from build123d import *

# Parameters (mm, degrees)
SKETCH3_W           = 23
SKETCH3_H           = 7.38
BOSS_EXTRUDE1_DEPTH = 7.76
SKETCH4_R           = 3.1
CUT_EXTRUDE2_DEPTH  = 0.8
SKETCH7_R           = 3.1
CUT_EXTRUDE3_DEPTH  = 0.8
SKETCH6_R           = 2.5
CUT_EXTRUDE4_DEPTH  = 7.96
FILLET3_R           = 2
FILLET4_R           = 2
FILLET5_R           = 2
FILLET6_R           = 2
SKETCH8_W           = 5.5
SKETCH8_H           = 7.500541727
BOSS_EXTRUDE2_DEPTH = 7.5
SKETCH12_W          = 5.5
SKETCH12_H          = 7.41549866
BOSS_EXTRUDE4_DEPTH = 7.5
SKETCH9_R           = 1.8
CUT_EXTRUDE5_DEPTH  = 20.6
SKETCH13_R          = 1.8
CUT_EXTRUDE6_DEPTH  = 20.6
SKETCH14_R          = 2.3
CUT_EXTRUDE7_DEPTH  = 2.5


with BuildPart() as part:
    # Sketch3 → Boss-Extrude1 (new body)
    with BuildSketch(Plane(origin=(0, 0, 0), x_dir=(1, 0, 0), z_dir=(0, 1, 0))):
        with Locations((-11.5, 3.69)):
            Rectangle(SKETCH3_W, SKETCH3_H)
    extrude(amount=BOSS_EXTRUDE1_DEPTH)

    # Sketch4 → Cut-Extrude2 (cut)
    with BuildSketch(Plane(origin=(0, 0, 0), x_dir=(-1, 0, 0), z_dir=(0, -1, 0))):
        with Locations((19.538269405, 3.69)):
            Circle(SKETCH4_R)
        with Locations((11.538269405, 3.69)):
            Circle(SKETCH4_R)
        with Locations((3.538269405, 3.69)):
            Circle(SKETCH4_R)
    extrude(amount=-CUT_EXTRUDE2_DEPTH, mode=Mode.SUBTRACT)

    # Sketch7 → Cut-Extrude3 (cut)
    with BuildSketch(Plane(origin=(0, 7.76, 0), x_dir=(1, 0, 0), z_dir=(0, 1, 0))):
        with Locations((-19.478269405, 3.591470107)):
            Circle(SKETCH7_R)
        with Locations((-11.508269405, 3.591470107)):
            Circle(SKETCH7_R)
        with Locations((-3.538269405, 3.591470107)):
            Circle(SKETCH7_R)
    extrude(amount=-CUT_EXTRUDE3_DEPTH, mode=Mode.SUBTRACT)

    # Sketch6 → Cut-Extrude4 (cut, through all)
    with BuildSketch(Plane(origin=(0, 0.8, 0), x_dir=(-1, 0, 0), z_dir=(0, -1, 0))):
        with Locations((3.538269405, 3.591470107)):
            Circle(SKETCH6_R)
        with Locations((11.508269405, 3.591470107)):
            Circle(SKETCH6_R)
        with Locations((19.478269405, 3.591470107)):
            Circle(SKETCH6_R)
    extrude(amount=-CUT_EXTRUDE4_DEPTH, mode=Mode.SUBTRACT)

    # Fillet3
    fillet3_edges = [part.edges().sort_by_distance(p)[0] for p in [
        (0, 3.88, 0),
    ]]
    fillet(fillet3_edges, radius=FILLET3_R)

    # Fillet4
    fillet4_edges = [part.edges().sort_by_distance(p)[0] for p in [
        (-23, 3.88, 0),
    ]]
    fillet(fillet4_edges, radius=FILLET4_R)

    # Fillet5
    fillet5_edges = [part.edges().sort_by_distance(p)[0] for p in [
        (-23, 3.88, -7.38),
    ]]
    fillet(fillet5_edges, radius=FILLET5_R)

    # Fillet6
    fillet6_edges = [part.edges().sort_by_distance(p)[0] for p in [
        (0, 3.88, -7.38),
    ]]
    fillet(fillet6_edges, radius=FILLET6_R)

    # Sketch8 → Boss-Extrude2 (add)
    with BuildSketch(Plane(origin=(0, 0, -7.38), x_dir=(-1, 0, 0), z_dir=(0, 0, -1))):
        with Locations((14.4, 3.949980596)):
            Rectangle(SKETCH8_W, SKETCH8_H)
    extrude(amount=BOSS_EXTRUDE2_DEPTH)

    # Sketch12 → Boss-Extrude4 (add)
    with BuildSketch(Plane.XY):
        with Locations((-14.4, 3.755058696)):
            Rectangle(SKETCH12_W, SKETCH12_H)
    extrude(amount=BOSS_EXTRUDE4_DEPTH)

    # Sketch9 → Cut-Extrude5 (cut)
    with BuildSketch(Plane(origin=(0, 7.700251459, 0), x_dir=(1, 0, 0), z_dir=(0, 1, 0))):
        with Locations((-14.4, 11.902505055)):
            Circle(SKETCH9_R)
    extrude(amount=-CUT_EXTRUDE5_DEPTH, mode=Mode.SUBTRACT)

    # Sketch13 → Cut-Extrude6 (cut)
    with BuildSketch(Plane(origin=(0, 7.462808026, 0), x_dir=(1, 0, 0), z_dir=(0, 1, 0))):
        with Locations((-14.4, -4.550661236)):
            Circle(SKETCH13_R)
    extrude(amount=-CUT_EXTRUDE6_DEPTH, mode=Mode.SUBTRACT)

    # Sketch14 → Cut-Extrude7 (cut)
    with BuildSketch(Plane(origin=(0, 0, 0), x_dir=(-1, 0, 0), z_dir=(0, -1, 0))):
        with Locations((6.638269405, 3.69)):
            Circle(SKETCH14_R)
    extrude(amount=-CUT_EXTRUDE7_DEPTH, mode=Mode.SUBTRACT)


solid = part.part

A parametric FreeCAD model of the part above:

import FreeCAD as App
import Part
import Sketcher

V = App.Vector
Q = App.Units.Quantity


def edges_at(feature, points):
    """Names of the edges that pass closest to the given points."""
    edges = feature.Shape.Edges
    near = lambda p: min(range(len(edges)), key=lambda i: edges[i].distToShape(Part.Vertex(*p))[0])
    return sorted({f"Edge{near(p) + 1}" for p in points})

doc = App.newDocument("Part")
body = doc.addObject("PartDesign::Body", "Body")

# Sketch on XZ plane
sketch1 = body.newObject("Sketcher::SketchObject", "Sketch")
sketch1.AttachmentSupport = (doc.getObject("XZ_Plane"), [""])
sketch1.MapMode = "FlatFace"
sketch1.addGeometry(Part.LineSegment(V(-23, -7.38, 0), V(-23, 0, 0)), False)
sketch1.addGeometry(Part.LineSegment(V(-23, 0, 0), V(0, 0, 0)), False)
sketch1.addGeometry(Part.LineSegment(V(0, 0, 0), V(0, -7.38, 0)), False)
sketch1.addGeometry(Part.LineSegment(V(0, -7.38, 0), V(-23, -7.38, 0)), False)
sketch1.addConstraint(Sketcher.Constraint("Coincident", 0, 2, 1, 1))
sketch1.addConstraint(Sketcher.Constraint("Coincident", 1, 2, 2, 1))
sketch1.addConstraint(Sketcher.Constraint("Coincident", 2, 2, 3, 1))
sketch1.addConstraint(Sketcher.Constraint("Coincident", 3, 2, 0, 1))
sketch1.addConstraint(Sketcher.Constraint("Vertical", 0))
sketch1.addConstraint(Sketcher.Constraint("Horizontal", 1))
sketch1.addConstraint(Sketcher.Constraint("Vertical", 2))
sketch1.addConstraint(Sketcher.Constraint("Horizontal", 3))
sketch1.addConstraint(Sketcher.Constraint("Coincident", 1, 2, -1, 1))
sketch1.addConstraint(Sketcher.Constraint("DistanceX", 1, 1, 1, 2, Q("23 mm")))
sketch1.addConstraint(Sketcher.Constraint("DistanceY", 0, 1, 0, 2, Q("7.38 mm")))
pad1 = body.newObject("PartDesign::Pad", "Pad")
pad1.Profile = sketch1
pad1.Length = 7.76
pad1.Reversed = True

# Sketch on XZ plane
sketch2 = body.newObject("Sketcher::SketchObject", "Sketch001")
sketch2.AttachmentSupport = (doc.getObject("XZ_Plane"), [""])
sketch2.MapMode = "FlatFace"
sketch2.addGeometry(Part.Circle(V(-19.538269, -3.69, 0), V(0, 0, 1), 3.1), False)
sketch2.addGeometry(Part.Circle(V(-11.538269, -3.69, 0), V(0, 0, 1), 3.1), False)
sketch2.addGeometry(Part.Circle(V(-3.538269, -3.69, 0), V(0, 0, 1), 3.1), False)
sketch2.addConstraint(Sketcher.Constraint("Equal", 0, 1))
sketch2.addConstraint(Sketcher.Constraint("Equal", 1, 2))
sketch2.addConstraint(Sketcher.Constraint("Horizontal", 0, 3, 1, 3))
sketch2.addConstraint(Sketcher.Constraint("Horizontal", 1, 3, 2, 3))
sketch2.addConstraint(Sketcher.Constraint("Diameter", 0, Q("6.2 mm")))
sketch2.addConstraint(Sketcher.Constraint("DistanceX", 0, 3, 1, 3, Q("8 mm")))
sketch2.addConstraint(Sketcher.Constraint("DistanceX", 1, 3, 2, 3, Q("8 mm")))
sketch2.addConstraint(Sketcher.Constraint("DistanceY", 0, 3, -1, 1, Q("3.69 mm")))
sketch2.addConstraint(Sketcher.Constraint("DistanceX", 0, 3, -1, 1, Q("19.538269 mm")))
pocket1 = body.newObject("PartDesign::Pocket", "Pocket")
pocket1.Profile = sketch2
pocket1.Length = 0.8

# Sketch on XZ plane
sketch3 = body.newObject("Sketcher::SketchObject", "Sketch002")
sketch3.AttachmentSupport = (doc.getObject("XZ_Plane"), [""])
sketch3.MapMode = "FlatFace"
sketch3.AttachmentOffset = App.Placement(V(0, 0, -7.76), App.Rotation())
sketch3.addGeometry(Part.Circle(V(-19.478269, -3.59147, 0), V(0, 0, 1), 3.1), False)
sketch3.addGeometry(Part.Circle(V(-11.508269, -3.59147, 0), V(0, 0, 1), 3.1), False)
sketch3.addGeometry(Part.Circle(V(-3.538269, -3.59147, 0), V(0, 0, 1), 3.1), False)
sketch3.addConstraint(Sketcher.Constraint("Equal", 0, 1))
sketch3.addConstraint(Sketcher.Constraint("Equal", 1, 2))
sketch3.addConstraint(Sketcher.Constraint("Horizontal", 0, 3, 1, 3))
sketch3.addConstraint(Sketcher.Constraint("Horizontal", 1, 3, 2, 3))
sketch3.addConstraint(Sketcher.Constraint("Diameter", 0, Q("6.2 mm")))
sketch3.addConstraint(Sketcher.Constraint("DistanceX", 0, 3, 1, 3, Q("7.97 mm")))
sketch3.addConstraint(Sketcher.Constraint("DistanceX", 1, 3, 2, 3, Q("7.97 mm")))
sketch3.addConstraint(Sketcher.Constraint("DistanceX", 0, 3, -1, 1, Q("19.478269 mm")))
sketch3.addConstraint(Sketcher.Constraint("DistanceY", 0, 3, -1, 1, Q("3.59147 mm")))
pocket2 = body.newObject("PartDesign::Pocket", "Pocket001")
pocket2.Profile = sketch3
pocket2.Length = 0.8
pocket2.Reversed = True

# Sketch on XZ plane
sketch4 = body.newObject("Sketcher::SketchObject", "Sketch003")
sketch4.AttachmentSupport = (doc.getObject("XZ_Plane"), [""])
sketch4.MapMode = "FlatFace"
sketch4.AttachmentOffset = App.Placement(V(0, 0, -0.8), App.Rotation())
sketch4.addGeometry(Part.Circle(V(-3.538269, -3.59147, 0), V(0, 0, 1), 2.5), False)
sketch4.addGeometry(Part.Circle(V(-11.508269, -3.59147, 0), V(0, 0, 1), 2.5), False)
sketch4.addGeometry(Part.Circle(V(-19.478269, -3.59147, 0), V(0, 0, 1), 2.5), False)
sketch4.addConstraint(Sketcher.Constraint("Equal", 0, 1))
sketch4.addConstraint(Sketcher.Constraint("Equal", 1, 2))
sketch4.addConstraint(Sketcher.Constraint("Horizontal", 0, 3, 1, 3))
sketch4.addConstraint(Sketcher.Constraint("Horizontal", 1, 3, 2, 3))
sketch4.addConstraint(Sketcher.Constraint("Diameter", 0, Q("5 mm")))
sketch4.addConstraint(Sketcher.Constraint("DistanceX", 1, 3, 0, 3, Q("7.97 mm")))
sketch4.addConstraint(Sketcher.Constraint("DistanceX", 2, 3, 1, 3, Q("7.97 mm")))
sketch4.addConstraint(Sketcher.Constraint("DistanceX", 0, 3, -1, 1, Q("3.538269 mm")))
sketch4.addConstraint(Sketcher.Constraint("DistanceY", 0, 3, -1, 1, Q("3.59147 mm")))
pocket3 = body.newObject("PartDesign::Pocket", "Pocket002")
pocket3.Profile = sketch4
pocket3.Type = "ThroughAll"
doc.recompute()

fillet = body.newObject("PartDesign::Fillet", "Fillet")
fillet.Base = (pocket3, edges_at(pocket3, [(0, 3.88, 0)]))
fillet.Radius = 2
doc.recompute()

fillet2 = body.newObject("PartDesign::Fillet", "Fillet001")
fillet2.Base = (fillet, edges_at(fillet, [(-23, 3.88, 0)]))
fillet2.Radius = 2
doc.recompute()

fillet3 = body.newObject("PartDesign::Fillet", "Fillet002")
fillet3.Base = (fillet2, edges_at(fillet2, [(-23, 3.88, -7.38)]))
fillet3.Radius = 2
doc.recompute()

fillet4 = body.newObject("PartDesign::Fillet", "Fillet003")
fillet4.Base = (fillet3, edges_at(fillet3, [(0, 3.88, -7.38)]))
fillet4.Radius = 2

# Sketch on XY plane
sketch5 = body.newObject("Sketcher::SketchObject", "Sketch004")
sketch5.AttachmentSupport = (doc.getObject("XY_Plane"), [""])
sketch5.MapMode = "FlatFace"
sketch5.AttachmentOffset = App.Placement(V(0, 0, -7.38), App.Rotation())
sketch5.addGeometry(Part.LineSegment(V(-11.65, 7.700251, 0), V(-11.65, 0.19971, 0)), False)
sketch5.addGeometry(Part.LineSegment(V(-11.65, 0.19971, 0), V(-17.15, 0.19971, 0)), False)
sketch5.addGeometry(Part.LineSegment(V(-17.15, 0.19971, 0), V(-17.15, 7.700251, 0)), False)
sketch5.addGeometry(Part.LineSegment(V(-17.15, 7.700251, 0), V(-11.65, 7.700251, 0)), False)
sketch5.addConstraint(Sketcher.Constraint("Coincident", 0, 2, 1, 1))
sketch5.addConstraint(Sketcher.Constraint("Coincident", 1, 2, 2, 1))
sketch5.addConstraint(Sketcher.Constraint("Coincident", 2, 2, 3, 1))
sketch5.addConstraint(Sketcher.Constraint("Coincident", 3, 2, 0, 1))
sketch5.addConstraint(Sketcher.Constraint("Vertical", 0))
sketch5.addConstraint(Sketcher.Constraint("Horizontal", 1))
sketch5.addConstraint(Sketcher.Constraint("Vertical", 2))
sketch5.addConstraint(Sketcher.Constraint("Horizontal", 3))
sketch5.addConstraint(Sketcher.Constraint("DistanceX", 1, 2, 1, 1, Q("5.5 mm")))
sketch5.addConstraint(Sketcher.Constraint("DistanceX", 0, 2, -1, 1, Q("11.65 mm")))
sketch5.addConstraint(Sketcher.Constraint("DistanceY", 0, 2, 0, 1, Q("7.500542 mm")))
sketch5.addConstraint(Sketcher.Constraint("DistanceY", -1, 1, 0, 2, Q("0.19971 mm")))
pad2 = body.newObject("PartDesign::Pad", "Pad001")
pad2.Profile = sketch5
pad2.Length = 7.5
pad2.Reversed = True

# Sketch on XY plane
sketch6 = body.newObject("Sketcher::SketchObject", "Sketch005")
sketch6.AttachmentSupport = (doc.getObject("XY_Plane"), [""])
sketch6.MapMode = "FlatFace"
sketch6.addGeometry(Part.LineSegment(V(-17.15, 7.462808, 0), V(-17.15, 0.047309, 0)), False)
sketch6.addGeometry(Part.LineSegment(V(-17.15, 0.047309, 0), V(-11.65, 0.047309, 0)), False)
sketch6.addGeometry(Part.LineSegment(V(-11.65, 0.047309, 0), V(-11.65, 7.462808, 0)), False)
sketch6.addGeometry(Part.LineSegment(V(-11.65, 7.462808, 0), V(-17.15, 7.462808, 0)), False)
sketch6.addConstraint(Sketcher.Constraint("Coincident", 0, 2, 1, 1))
sketch6.addConstraint(Sketcher.Constraint("Coincident", 1, 2, 2, 1))
sketch6.addConstraint(Sketcher.Constraint("Coincident", 2, 2, 3, 1))
sketch6.addConstraint(Sketcher.Constraint("Coincident", 3, 2, 0, 1))
sketch6.addConstraint(Sketcher.Constraint("Vertical", 0))
sketch6.addConstraint(Sketcher.Constraint("Horizontal", 1))
sketch6.addConstraint(Sketcher.Constraint("Vertical", 2))
sketch6.addConstraint(Sketcher.Constraint("Horizontal", 3))
sketch6.addConstraint(Sketcher.Constraint("DistanceX", 1, 1, 1, 2, Q("5.5 mm")))
sketch6.addConstraint(Sketcher.Constraint("DistanceX", 0, 2, -1, 1, Q("17.15 mm")))
sketch6.addConstraint(Sketcher.Constraint("DistanceY", 0, 2, 0, 1, Q("7.415499 mm")))
sketch6.addConstraint(Sketcher.Constraint("DistanceY", -1, 1, 0, 2, Q("0.047309 mm")))
pad3 = body.newObject("PartDesign::Pad", "Pad002")
pad3.Profile = sketch6
pad3.Length = 7.5

# Sketch on XZ plane
sketch7 = body.newObject("Sketcher::SketchObject", "Sketch006")
sketch7.AttachmentSupport = (doc.getObject("XZ_Plane"), [""])
sketch7.MapMode = "FlatFace"
sketch7.AttachmentOffset = App.Placement(V(0, 0, -7.700251), App.Rotation())
sketch7.addGeometry(Part.Circle(V(-14.4, -11.902505, 0), V(0, 0, 1), 1.8), False)
sketch7.addConstraint(Sketcher.Constraint("Diameter", 0, Q("3.6 mm")))
sketch7.addConstraint(Sketcher.Constraint("DistanceX", 0, 3, -1, 1, Q("14.4 mm")))
sketch7.addConstraint(Sketcher.Constraint("DistanceY", 0, 3, -1, 1, Q("11.902505 mm")))
pocket4 = body.newObject("PartDesign::Pocket", "Pocket003")
pocket4.Profile = sketch7
pocket4.Length = 20.6
pocket4.Reversed = True

# Sketch on XZ plane
sketch8 = body.newObject("Sketcher::SketchObject", "Sketch007")
sketch8.AttachmentSupport = (doc.getObject("XZ_Plane"), [""])
sketch8.MapMode = "FlatFace"
sketch8.AttachmentOffset = App.Placement(V(0, 0, -7.462808), App.Rotation())
sketch8.addGeometry(Part.Circle(V(-14.4, 4.550661, 0), V(0, 0, 1), 1.8), False)
sketch8.addConstraint(Sketcher.Constraint("Diameter", 0, Q("3.6 mm")))
sketch8.addConstraint(Sketcher.Constraint("DistanceX", 0, 3, -1, 1, Q("14.4 mm")))
sketch8.addConstraint(Sketcher.Constraint("DistanceY", -1, 1, 0, 3, Q("4.550661 mm")))
pocket5 = body.newObject("PartDesign::Pocket", "Pocket004")
pocket5.Profile = sketch8
pocket5.Length = 20.6
pocket5.Reversed = True

# Sketch on XZ plane
sketch9 = body.newObject("Sketcher::SketchObject", "Sketch008")
sketch9.AttachmentSupport = (doc.getObject("XZ_Plane"), [""])
sketch9.MapMode = "FlatFace"
sketch9.addGeometry(Part.Circle(V(-6.638269, -3.69, 0), V(0, 0, 1), 2.3), False)
sketch9.addConstraint(Sketcher.Constraint("Diameter", 0, Q("4.6 mm")))
sketch9.addConstraint(Sketcher.Constraint("DistanceY", 0, 3, -1, 1, Q("3.69 mm")))
sketch9.addConstraint(Sketcher.Constraint("DistanceX", 0, 3, -1, 1, Q("6.638269 mm")))
pocket6 = body.newObject("PartDesign::Pocket", "Pocket005")
pocket6.Profile = sketch9
pocket6.Length = 2.5

doc.recompute()
